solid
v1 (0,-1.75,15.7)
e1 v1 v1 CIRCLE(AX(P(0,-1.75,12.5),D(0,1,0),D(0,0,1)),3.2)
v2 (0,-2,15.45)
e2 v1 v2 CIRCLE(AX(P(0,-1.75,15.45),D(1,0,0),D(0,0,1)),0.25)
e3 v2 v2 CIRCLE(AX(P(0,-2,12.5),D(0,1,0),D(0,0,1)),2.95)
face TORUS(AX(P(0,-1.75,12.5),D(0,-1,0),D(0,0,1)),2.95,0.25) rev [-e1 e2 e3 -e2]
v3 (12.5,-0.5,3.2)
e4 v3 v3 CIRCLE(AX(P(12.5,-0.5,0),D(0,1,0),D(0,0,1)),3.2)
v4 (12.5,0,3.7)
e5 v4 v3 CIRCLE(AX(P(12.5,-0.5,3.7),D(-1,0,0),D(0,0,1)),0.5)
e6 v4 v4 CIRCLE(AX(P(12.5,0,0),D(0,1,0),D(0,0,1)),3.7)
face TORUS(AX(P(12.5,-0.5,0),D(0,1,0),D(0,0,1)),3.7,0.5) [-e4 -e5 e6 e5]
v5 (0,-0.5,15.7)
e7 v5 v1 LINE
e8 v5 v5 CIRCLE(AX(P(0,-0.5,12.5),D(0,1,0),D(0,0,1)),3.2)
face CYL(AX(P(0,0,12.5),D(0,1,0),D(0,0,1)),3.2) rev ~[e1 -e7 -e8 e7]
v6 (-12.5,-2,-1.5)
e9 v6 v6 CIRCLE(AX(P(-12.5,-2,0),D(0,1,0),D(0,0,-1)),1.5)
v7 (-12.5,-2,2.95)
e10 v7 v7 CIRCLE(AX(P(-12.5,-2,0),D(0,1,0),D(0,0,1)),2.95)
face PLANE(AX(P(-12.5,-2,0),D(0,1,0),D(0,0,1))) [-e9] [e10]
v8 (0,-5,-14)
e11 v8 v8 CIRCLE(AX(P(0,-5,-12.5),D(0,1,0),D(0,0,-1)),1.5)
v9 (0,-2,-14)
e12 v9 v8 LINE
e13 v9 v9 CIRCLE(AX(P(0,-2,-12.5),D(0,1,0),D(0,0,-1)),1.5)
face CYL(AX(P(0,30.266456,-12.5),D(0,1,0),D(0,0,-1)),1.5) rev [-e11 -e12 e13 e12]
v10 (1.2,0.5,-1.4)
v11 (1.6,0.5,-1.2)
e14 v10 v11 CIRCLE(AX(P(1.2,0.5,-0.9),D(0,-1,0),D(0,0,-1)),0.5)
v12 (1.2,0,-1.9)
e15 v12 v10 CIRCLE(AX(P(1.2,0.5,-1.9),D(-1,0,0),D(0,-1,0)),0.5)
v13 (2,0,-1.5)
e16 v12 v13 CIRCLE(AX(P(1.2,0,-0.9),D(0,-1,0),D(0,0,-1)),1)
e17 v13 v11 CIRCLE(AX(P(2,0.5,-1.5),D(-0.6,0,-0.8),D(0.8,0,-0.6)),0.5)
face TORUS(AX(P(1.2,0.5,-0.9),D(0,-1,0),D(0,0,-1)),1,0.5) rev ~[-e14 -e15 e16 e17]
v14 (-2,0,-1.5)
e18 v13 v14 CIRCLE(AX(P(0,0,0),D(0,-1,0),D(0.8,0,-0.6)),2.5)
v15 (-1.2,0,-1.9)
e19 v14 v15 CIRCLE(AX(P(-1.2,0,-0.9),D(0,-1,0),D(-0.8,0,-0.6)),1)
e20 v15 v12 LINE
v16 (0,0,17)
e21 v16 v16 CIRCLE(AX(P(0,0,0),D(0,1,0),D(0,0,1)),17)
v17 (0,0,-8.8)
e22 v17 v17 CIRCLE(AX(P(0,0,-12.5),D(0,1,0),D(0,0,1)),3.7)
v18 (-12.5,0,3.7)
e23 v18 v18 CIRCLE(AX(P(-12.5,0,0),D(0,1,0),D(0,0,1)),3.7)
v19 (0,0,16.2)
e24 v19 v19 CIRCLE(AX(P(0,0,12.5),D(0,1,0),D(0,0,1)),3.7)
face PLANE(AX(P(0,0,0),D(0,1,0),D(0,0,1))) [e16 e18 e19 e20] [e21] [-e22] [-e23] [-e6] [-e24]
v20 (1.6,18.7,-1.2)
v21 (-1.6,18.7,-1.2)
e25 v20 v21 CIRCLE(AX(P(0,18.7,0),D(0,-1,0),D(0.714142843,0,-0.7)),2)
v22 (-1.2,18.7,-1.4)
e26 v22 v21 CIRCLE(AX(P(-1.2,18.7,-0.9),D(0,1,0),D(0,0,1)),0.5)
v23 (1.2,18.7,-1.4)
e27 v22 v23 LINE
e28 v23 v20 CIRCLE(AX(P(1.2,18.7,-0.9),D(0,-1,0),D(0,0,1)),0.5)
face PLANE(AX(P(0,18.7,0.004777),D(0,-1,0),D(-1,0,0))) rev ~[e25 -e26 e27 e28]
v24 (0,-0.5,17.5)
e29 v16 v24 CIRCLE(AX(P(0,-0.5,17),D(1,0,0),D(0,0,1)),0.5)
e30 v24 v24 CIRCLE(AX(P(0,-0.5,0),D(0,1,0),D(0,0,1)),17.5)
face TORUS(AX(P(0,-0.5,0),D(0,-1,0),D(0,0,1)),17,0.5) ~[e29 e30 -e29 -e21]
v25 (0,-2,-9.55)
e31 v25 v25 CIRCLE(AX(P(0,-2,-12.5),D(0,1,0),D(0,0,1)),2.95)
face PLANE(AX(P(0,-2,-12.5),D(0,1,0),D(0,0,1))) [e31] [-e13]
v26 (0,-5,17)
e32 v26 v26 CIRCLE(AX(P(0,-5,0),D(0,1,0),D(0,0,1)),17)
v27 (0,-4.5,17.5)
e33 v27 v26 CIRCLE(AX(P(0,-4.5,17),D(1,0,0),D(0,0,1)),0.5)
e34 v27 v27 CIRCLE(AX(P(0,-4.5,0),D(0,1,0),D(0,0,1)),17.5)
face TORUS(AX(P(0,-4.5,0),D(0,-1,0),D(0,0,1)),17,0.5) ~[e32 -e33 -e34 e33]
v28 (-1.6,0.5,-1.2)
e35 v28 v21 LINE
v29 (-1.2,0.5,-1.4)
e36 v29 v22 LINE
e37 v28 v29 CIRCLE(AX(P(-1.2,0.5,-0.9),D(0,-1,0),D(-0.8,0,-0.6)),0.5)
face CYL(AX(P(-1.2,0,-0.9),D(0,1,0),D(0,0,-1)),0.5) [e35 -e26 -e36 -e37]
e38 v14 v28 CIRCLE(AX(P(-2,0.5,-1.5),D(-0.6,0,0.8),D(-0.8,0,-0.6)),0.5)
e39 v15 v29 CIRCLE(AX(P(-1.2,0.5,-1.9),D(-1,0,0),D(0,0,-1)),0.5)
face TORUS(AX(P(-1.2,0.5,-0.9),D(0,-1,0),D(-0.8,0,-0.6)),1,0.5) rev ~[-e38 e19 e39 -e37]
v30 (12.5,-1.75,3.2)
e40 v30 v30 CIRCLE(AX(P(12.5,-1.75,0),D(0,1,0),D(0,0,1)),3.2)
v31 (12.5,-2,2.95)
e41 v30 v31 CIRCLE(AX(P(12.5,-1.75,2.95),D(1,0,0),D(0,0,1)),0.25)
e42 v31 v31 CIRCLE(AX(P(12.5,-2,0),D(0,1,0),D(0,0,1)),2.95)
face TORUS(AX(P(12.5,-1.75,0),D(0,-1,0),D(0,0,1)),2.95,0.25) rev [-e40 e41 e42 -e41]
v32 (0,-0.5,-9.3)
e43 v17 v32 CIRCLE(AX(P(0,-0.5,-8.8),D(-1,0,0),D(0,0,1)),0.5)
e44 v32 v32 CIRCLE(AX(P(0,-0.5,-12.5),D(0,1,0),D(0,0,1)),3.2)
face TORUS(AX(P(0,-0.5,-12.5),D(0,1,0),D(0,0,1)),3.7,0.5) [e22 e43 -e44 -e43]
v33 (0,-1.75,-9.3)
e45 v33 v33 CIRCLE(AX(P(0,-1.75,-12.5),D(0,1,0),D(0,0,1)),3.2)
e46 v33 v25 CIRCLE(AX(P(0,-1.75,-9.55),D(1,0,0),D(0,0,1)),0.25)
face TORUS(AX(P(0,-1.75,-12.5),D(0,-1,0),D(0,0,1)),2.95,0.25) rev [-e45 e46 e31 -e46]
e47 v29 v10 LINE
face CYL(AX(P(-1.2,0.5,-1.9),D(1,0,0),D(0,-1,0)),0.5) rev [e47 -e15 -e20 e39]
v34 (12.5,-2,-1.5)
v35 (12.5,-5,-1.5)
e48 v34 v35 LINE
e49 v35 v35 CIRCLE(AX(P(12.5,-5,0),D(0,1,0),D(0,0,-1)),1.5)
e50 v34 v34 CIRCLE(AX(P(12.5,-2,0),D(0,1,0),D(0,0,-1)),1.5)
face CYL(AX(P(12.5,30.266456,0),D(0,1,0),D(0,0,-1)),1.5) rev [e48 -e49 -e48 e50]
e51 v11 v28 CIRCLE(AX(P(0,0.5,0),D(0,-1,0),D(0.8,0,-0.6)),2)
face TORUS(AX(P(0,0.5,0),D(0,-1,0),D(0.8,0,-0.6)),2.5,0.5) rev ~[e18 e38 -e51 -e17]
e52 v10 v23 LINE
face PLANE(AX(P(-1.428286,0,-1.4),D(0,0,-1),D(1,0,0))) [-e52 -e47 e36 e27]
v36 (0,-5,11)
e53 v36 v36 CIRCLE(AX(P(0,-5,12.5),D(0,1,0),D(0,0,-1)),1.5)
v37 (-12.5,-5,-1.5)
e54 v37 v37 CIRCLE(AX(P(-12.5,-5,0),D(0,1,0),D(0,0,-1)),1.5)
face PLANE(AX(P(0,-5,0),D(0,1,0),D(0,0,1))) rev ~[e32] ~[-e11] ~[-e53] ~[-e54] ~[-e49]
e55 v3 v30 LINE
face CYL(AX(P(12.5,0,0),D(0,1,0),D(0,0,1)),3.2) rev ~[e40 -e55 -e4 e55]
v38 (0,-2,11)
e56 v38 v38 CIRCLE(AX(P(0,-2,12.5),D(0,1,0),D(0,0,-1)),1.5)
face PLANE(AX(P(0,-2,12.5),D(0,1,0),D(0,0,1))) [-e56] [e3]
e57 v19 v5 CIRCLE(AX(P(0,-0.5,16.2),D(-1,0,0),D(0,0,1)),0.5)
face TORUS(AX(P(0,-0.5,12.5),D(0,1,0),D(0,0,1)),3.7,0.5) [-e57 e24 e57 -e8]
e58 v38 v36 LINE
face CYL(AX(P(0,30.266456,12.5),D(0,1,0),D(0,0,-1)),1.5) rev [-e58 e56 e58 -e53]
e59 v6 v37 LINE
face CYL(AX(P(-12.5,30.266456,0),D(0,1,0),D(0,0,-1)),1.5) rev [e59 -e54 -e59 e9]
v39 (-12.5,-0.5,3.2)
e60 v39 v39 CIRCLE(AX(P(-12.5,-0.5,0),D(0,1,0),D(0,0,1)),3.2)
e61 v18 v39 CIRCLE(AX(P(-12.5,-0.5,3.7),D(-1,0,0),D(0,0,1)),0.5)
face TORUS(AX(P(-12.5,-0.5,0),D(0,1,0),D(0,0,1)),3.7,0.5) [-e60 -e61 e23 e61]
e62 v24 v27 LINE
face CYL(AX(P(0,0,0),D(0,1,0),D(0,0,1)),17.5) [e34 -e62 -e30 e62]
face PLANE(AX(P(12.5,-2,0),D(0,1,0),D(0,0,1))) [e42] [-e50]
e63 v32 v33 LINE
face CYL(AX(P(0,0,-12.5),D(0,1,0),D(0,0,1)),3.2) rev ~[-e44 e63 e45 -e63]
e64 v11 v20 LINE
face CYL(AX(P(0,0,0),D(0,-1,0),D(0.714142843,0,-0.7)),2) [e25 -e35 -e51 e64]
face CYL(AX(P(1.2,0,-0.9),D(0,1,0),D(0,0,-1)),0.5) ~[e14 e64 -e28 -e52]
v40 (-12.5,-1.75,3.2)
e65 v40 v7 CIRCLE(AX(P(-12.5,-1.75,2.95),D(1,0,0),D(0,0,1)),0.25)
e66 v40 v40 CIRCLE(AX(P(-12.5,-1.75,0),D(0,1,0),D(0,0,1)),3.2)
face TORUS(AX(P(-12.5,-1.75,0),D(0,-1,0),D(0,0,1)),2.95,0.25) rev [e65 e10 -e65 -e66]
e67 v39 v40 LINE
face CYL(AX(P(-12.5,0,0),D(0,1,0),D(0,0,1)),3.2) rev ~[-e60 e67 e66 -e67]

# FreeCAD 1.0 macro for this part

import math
import FreeCAD as App
import Part
import Sketcher
Q = App.Units.Quantity


def edges_at(feature, points):
    """Names of the edges that pass closest to the given points."""
    edges = feature.Shape.Edges
    near = lambda p: min(range(len(edges)), key=lambda i: edges[i].distToShape(Part.Vertex(*p))[0])
    return sorted({f"Edge{near(p) + 1}" for p in points})

doc = App.newDocument("Part")
body = doc.addObject("PartDesign::Body", "Body")

# Sketch on XZ plane
sketch1 = body.newObject("Sketcher::SketchObject", "Sketch")
sketch1.AttachmentSupport = (doc.getObject("XZ_Plane"), [""])
sketch1.MapMode = "FlatFace"
sketch1.addGeometry(Part.LineSegment(App.Vector(1.428286, -1.4, 0), App.Vector(-1.428286, -1.4, 0)), False)
sketch1.addGeometry(Part.ArcOfCircle(Part.Circle(App.Vector(0, 0, 0), App.Vector(0, 0, 1), 2), math.radians(-44.427004), math.radians(224.427004)), False)
sketch1.addConstraint(Sketcher.Constraint("Coincident", 0, 1, 1, 1))
sketch1.addConstraint(Sketcher.Constraint("Coincident", 1, 2, 0, 2))
sketch1.addConstraint(Sketcher.Constraint("Horizontal", 0))
sketch1.addConstraint(Sketcher.Constraint("Coincident", 1, 3, -1, 1))
sketch1.addConstraint(Sketcher.Constraint("Radius", 1, Q("2 mm")))
sketch1.addConstraint(Sketcher.Constraint("DistanceY", 0, 1, -1, 1, Q("1.4 mm")))
pad1 = body.newObject("PartDesign::Pad", "Pad")
pad1.Profile = sketch1
pad1.Length = 18.7
pad1.Reversed = True
doc.recompute()

fillet = body.newObject("PartDesign::Fillet", "Fillet")
fillet.Base = (pad1, edges_at(pad1, [(-1.428, 9.35, -1.4), (1.428, 9.35, -1.4)]))
fillet.Radius = 0.5

# Sketch on XZ plane
sketch2 = body.newObject("Sketcher::SketchObject", "Sketch001")
sketch2.AttachmentSupport = (doc.getObject("XZ_Plane"), [""])
sketch2.MapMode = "FlatFace"
sketch2.addGeometry(Part.Circle(App.Vector(0, 0, 0), App.Vector(0, 0, 1), 17.5), False)
sketch2.addConstraint(Sketcher.Constraint("Coincident", 0, 3, -1, 1))
sketch2.addConstraint(Sketcher.Constraint("Diameter", 0, Q("35 mm")))
pad2 = body.newObject("PartDesign::Pad", "Pad001")
pad2.Profile = sketch2
pad2.Length = 5

# Sketch on XZ plane
sketch3 = body.newObject("Sketcher::SketchObject", "Sketch002")
sketch3.AttachmentSupport = (doc.getObject("XZ_Plane"), [""])
sketch3.MapMode = "FlatFace"
sketch3.AttachmentOffset = App.Placement(App.Vector(0, 0, 5), App.Rotation())
sketch3.addGeometry(Part.Circle(App.Vector(0, 12.5, 0), App.Vector(0, 0, 1), 1.5), False)
sketch3.addGeometry(Part.Circle(App.Vector(12.5, 0, 0), App.Vector(0, 0, 1), 1.5), False)
sketch3.addGeometry(Part.Circle(App.Vector(-12.5, 0, 0), App.Vector(0, 0, 1), 1.5), False)
sketch3.addGeometry(Part.Circle(App.Vector(0, -12.5, 0), App.Vector(0, 0, 1), 1.5), False)
sketch3.addConstraint(Sketcher.Constraint("Equal", 0, 1))
sketch3.addConstraint(Sketcher.Constraint("Equal", 1, 2))
sketch3.addConstraint(Sketcher.Constraint("Equal", 2, 3))
sketch3.addConstraint(Sketcher.Constraint("Symmetric", 1, 3, 2, 3, -1, 1))
sketch3.addConstraint(Sketcher.Constraint("Symmetric", 0, 3, 3, 3, -1, 1))
sketch3.addConstraint(Sketcher.Constraint("PointOnObject", 0, 3, -2))
sketch3.addConstraint(Sketcher.Constraint("PointOnObject", 1, 3, -1))
sketch3.addConstraint(Sketcher.Constraint("Diameter", 0, Q("3 mm")))
sketch3.addConstraint(Sketcher.Constraint("DistanceX", 2, 3, 1, 3, Q("25 mm")))
sketch3.addConstraint(Sketcher.Constraint("DistanceY", 3, 3, 0, 3, Q("25 mm")))
pocket1 = body.newObject("PartDesign::Pocket", "Pocket")
pocket1.Profile = sketch3
pocket1.Type = "ThroughAll"
pocket1.Midplane = True

# Sketch on XZ plane
sketch4 = body.newObject("Sketcher::SketchObject", "Sketch003")
sketch4.AttachmentSupport = (doc.getObject("XZ_Plane"), [""])
sketch4.MapMode = "FlatFace"
sketch4.addGeometry(Part.Circle(App.Vector(0, 12.5, 0), App.Vector(0, 0, 1), 3.2), False)
sketch4.addGeometry(Part.Circle(App.Vector(0, -12.5, 0), App.Vector(0, 0, 1), 3.2), False)
sketch4.addGeometry(Part.Circle(App.Vector(-12.5, 0, 0), App.Vector(0, 0, 1), 3.2), False)
sketch4.addGeometry(Part.Circle(App.Vector(12.5, 0, 0), App.Vector(0, 0, 1), 3.2), False)
sketch4.addConstraint(Sketcher.Constraint("Equal", 0, 1))
sketch4.addConstraint(Sketcher.Constraint("Equal", 1, 2))
sketch4.addConstraint(Sketcher.Constraint("Equal", 2, 3))
sketch4.addConstraint(Sketcher.Constraint("Symmetric", 0, 3, 1, 3, -1, 1))
sketch4.addConstraint(Sketcher.Constraint("Symmetric", 2, 3, 3, 3, -1, 1))
sketch4.addConstraint(Sketcher.Constraint("PointOnObject", 0, 3, -2))
sketch4.addConstraint(Sketcher.Constraint("PointOnObject", 2, 3, -1))
sketch4.addConstraint(Sketcher.Constraint("Diameter", 0, Q("6.4 mm")))
sketch4.addConstraint(Sketcher.Constraint("DistanceY", 1, 3, 0, 3, Q("25 mm")))
sketch4.addConstraint(Sketcher.Constraint("DistanceX", 2, 3, 3, 3, Q("25 mm")))
pocket2 = body.newObject("PartDesign::Pocket", "Pocket001")
pocket2.Profile = sketch4
pocket2.Length = 2
pocket2.Reversed = True
doc.recompute()

fillet2 = body.newObject("PartDesign::Fillet", "Fillet001")
fillet2.Base = (pocket2, edges_at(pocket2, [
    (-12.5, 0, -3.2),
    (12.5, 0, -3.2),
    (0, 0, 9.3),
    (0, 0, -15.7),
]))
fillet2.Radius = 0.5
doc.recompute()

fillet3 = body.newObject("PartDesign::Fillet", "Fillet002")
fillet3.Base = (fillet2, edges_at(fillet2, [
    (-12.5, -2, -3.2),
    (12.5, -2, -3.2),
    (0, -2, 9.3),
    (0, -2, -15.7),
]))
fillet3.Radius = 0.25
doc.recompute()

fillet4 = body.newObject("PartDesign::Fillet", "Fillet003")
fillet4.Base = (fillet3, edges_at(fillet3, [(0, 0, -17.5), (0, -5, -17.5)]))
fillet4.Radius = 0.5
doc.recompute()

fillet5 = body.newObject("PartDesign::Fillet", "Fillet004")
fillet5.Base = (fillet4, edges_at(fillet4, [
    (0, 0, 2),
    (-1.424, 0, -1.347),
    (1.424, 0, -1.347),
    (0, 0, -1.4),
]))
fillet5.Radius = 0.5

doc.recompute()
